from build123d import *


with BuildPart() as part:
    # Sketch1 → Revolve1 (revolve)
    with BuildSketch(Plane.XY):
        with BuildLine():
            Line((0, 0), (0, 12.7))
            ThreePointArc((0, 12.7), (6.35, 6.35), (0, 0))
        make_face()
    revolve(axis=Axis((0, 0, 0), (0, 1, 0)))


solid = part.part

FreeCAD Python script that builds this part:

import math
import FreeCAD as App
import Part
import Sketcher
from FreeCAD import Vector
Q = App.Units.Quantity

doc = App.newDocument("Part")
params = doc.addObject("Spreadsheet::Sheet", "Params")
for row, (alias, value) in enumerate([
    ("sketch1_radius", "0.25 in"),
    ("revolution_angle", "360 deg"),
], start=1):
    params.set(f"A{row}", alias)
    params.set(f"B{row}", "=" + value)
    params.setAlias(f"B{row}", alias)

body = doc.addObject("PartDesign::Body", "Body")

# Sketch on XY plane
sketch1 = body.newObject("Sketcher::SketchObject", "Sketch")
sketch1.AttachmentSupport = (doc.getObject("XY_Plane"), [""])
sketch1.MapMode = "FlatFace"
sketch1.addGeometry([
    Part.LineSegment(Vector(0, 13, 0), Vector(0, 0, 0)),
    Part.ArcOfCircle(Part.Circle(Vector(0, 6, 0), Vector(0, 0, 1), 6), math.radians(-90), math.radians(90)),
], False)
sketch1.addConstraint([
    Sketcher.Constraint("Coincident", 0, 1, 1, 2),
    Sketcher.Constraint("Coincident", 1, 1, 0, 2),
    Sketcher.Constraint("Vertical", 0),
    Sketcher.Constraint("Coincident", 1, 1, -1, 1),
    Sketcher.Constraint("PointOnObject", 1, 3, -2),
    Sketcher.Constraint("Radius", 1, Q("0.25 in")),
])
sketch1.setExpression("Constraints[5]", "Params.sketch1_radius")
revolution = body.newObject("PartDesign::Revolution", "Revolution")
revolution.Profile = sketch1
revolution.ReferenceAxis = (sketch1, ["V_Axis"])
revolution.setExpression("Angle", "Params.revolution_angle")

doc.recompute()
